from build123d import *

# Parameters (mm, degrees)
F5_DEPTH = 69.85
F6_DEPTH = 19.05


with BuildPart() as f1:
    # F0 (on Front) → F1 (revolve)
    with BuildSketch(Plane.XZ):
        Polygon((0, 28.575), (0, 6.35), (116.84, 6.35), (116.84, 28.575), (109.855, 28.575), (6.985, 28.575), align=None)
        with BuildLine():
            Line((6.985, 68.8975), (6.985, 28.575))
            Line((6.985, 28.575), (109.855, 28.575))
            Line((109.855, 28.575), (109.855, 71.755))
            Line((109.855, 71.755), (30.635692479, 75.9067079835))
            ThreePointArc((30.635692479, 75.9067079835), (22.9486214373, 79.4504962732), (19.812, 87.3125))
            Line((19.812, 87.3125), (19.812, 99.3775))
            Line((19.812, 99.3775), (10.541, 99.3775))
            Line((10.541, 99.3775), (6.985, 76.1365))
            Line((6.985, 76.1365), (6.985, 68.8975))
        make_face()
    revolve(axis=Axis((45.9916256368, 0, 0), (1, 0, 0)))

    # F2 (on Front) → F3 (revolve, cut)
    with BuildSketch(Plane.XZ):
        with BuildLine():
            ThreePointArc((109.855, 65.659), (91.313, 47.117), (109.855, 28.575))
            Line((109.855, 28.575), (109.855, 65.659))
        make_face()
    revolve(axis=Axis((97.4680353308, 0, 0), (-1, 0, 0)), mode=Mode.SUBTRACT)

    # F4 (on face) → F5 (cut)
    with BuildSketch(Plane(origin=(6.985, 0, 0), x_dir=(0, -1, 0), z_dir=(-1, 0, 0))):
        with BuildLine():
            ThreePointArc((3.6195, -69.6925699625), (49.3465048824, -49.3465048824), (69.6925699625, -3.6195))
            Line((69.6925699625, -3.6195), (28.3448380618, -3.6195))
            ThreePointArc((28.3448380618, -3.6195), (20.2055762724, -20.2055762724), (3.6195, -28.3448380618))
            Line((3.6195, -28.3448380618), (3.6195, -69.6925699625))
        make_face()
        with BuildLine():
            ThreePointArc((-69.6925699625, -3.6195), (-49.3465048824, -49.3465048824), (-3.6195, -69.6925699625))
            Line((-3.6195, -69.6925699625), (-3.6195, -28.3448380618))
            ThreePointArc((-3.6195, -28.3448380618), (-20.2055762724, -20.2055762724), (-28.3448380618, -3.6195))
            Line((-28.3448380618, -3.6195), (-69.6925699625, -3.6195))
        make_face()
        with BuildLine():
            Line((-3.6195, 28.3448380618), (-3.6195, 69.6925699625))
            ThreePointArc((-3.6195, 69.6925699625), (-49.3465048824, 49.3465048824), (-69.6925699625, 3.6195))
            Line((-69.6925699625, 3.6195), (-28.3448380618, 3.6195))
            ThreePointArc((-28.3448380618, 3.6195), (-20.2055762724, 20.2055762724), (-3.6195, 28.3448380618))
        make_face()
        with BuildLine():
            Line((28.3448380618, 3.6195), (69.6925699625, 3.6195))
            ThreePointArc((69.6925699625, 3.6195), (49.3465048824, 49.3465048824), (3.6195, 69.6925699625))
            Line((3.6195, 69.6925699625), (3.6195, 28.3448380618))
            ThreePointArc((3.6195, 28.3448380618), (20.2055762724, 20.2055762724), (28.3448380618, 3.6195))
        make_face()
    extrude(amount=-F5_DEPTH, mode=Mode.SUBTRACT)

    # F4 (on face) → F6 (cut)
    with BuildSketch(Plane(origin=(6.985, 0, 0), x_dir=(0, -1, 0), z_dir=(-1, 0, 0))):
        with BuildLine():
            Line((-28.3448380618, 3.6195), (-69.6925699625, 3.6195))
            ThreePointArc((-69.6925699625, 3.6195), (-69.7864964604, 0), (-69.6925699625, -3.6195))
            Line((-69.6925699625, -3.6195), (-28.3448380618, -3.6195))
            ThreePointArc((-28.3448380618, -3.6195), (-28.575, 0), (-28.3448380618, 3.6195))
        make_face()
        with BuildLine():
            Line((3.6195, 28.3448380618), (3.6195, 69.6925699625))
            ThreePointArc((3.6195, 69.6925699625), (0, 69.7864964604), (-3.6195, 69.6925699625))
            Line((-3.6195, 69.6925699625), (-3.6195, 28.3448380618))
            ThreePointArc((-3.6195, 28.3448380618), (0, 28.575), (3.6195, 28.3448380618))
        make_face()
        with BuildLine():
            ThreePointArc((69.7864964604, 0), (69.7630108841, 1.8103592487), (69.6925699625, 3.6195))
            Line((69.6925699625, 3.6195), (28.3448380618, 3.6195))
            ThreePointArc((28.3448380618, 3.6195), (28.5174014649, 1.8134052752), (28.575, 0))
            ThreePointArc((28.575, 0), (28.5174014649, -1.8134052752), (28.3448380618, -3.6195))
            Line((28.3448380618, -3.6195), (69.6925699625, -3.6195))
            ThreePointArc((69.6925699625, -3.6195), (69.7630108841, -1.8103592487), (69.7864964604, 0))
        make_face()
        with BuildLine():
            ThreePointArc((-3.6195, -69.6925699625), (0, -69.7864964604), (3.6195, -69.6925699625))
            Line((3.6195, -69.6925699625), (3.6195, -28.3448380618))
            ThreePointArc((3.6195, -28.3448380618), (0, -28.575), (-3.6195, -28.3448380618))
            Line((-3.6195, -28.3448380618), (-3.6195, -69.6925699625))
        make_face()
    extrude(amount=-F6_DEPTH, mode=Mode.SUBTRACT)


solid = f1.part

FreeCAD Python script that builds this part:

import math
import FreeCAD as App
import Part
import Sketcher

V = App.Vector
Q = App.Units.Quantity

doc = App.newDocument("Part")
body = doc.addObject("PartDesign::Body", "Body")

sketch1 = body.newObject("Sketcher::SketchObject", "Sketch")
sketch1.AttachmentSupport = (doc.getObject("XZ_Plane"), [""])
sketch1.MapMode = "FlatFace"
sketch1.addGeometry(Part.LineSegment(V(0, 28.575, 0), V(0, 6.35, 0)), False)
sketch1.addGeometry(Part.LineSegment(V(0, 6.35, 0), V(116.84, 6.35, 0)), False)
sketch1.addGeometry(Part.LineSegment(V(116.84, 6.35, 0), V(116.84, 28.575, 0)), False)
sketch1.addGeometry(Part.LineSegment(V(116.84, 28.575, 0), V(109.855, 28.575, 0)), False)
sketch1.addGeometry(Part.LineSegment(V(109.855, 28.575, 0), V(109.855, 71.755, 0)), False)
sketch1.addGeometry(Part.LineSegment(V(109.855, 71.755, 0), V(30.635692, 75.906708, 0)), False)
sketch1.addGeometry(Part.ArcOfCircle(Part.Circle(V(31.233445, 87.3125, 0), V(0, 0, 1), 11.421445), math.radians(180), math.radians(267)), False)
sketch1.addGeometry(Part.LineSegment(V(19.812, 87.3125, 0), V(19.812, 99.3775, 0)), False)
sketch1.addGeometry(Part.LineSegment(V(19.812, 99.3775, 0), V(10.541, 99.3775, 0)), False)
sketch1.addGeometry(Part.LineSegment(V(10.541, 99.3775, 0), V(6.985, 76.1365, 0)), False)
sketch1.addGeometry(Part.LineSegment(V(6.985, 76.1365, 0), V(6.985, 28.575, 0)), False)
sketch1.addGeometry(Part.LineSegment(V(6.985, 28.575, 0), V(0, 28.575, 0)), False)
sketch1.addConstraint(Sketcher.Constraint("Coincident", 0, 2, 1, 1))
sketch1.addConstraint(Sketcher.Constraint("Coincident", 1, 2, 2, 1))
sketch1.addConstraint(Sketcher.Constraint("Coincident", 2, 2, 3, 1))
sketch1.addConstraint(Sketcher.Constraint("Coincident", 3, 2, 4, 1))
sketch1.addConstraint(Sketcher.Constraint("Coincident", 4, 2, 5, 1))
sketch1.addConstraint(Sketcher.Constraint("Tangent", 5, 2, 6, 2))
sketch1.addConstraint(Sketcher.Constraint("Tangent", 6, 1, 7, 1))
sketch1.addConstraint(Sketcher.Constraint("Coincident", 7, 2, 8, 1))
sketch1.addConstraint(Sketcher.Constraint("Coincident", 8, 2, 9, 1))
sketch1.addConstraint(Sketcher.Constraint("Coincident", 9, 2, 10, 1))
sketch1.addConstraint(Sketcher.Constraint("Coincident", 10, 2, 11, 1))
sketch1.addConstraint(Sketcher.Constraint("Coincident", 11, 2, 0, 1))
sketch1.addConstraint(Sketcher.Constraint("Vertical", 0))
sketch1.addConstraint(Sketcher.Constraint("Horizontal", 1))
sketch1.addConstraint(Sketcher.Constraint("Vertical", 2))
sketch1.addConstraint(Sketcher.Constraint("Horizontal", 3))
sketch1.addConstraint(Sketcher.Constraint("Vertical", 4))
sketch1.addConstraint(Sketcher.Constraint("Vertical", 7))
sketch1.addConstraint(Sketcher.Constraint("Horizontal", 8))
sketch1.addConstraint(Sketcher.Constraint("Vertical", 10))
sketch1.addConstraint(Sketcher.Constraint("Horizontal", 11))
sketch1.addConstraint(Sketcher.Constraint("PointOnObject", 0, 2, -2))
sketch1.addConstraint(Sketcher.Constraint("Horizontal", 3, 2, 10, 2))
sketch1.addConstraint(Sketcher.Constraint("Equal", 3, 11))
sketch1.addConstraint(Sketcher.Constraint("DistanceX", 1, 1, 1, 2, Q("4.6 in")))
sketch1.addConstraint(Sketcher.Constraint("DistanceY", 4, 1, 4, 2, Q("1.7 in")))
sketch1.addConstraint(Sketcher.Constraint("Angle", 5, Q("177 deg")))
sketch1.addConstraint(Sketcher.Constraint("DistanceX", 3, 2, 3, 1, Q("0.275 in")))
sketch1.addConstraint(Sketcher.Constraint("DistanceX", 8, 2, 8, 1, Q("0.365 in")))
sketch1.addConstraint(Sketcher.Constraint("DistanceY", 0, 2, 0, 1, Q("0.875 in")))
sketch1.addConstraint(Sketcher.Constraint("DistanceY", 7, 1, 7, 2, Q("0.475 in")))
sketch1.addConstraint(Sketcher.Constraint("DistanceY", -1, 1, 0, 2, Q("0.25 in")))
sketch1.addConstraint(Sketcher.Constraint("DistanceX", -1, 1, 6, 1, Q("0.78 in")))
sketch1.addConstraint(Sketcher.Constraint("DistanceY", 9, 2, 6, 1, Q("0.44 in")))
sketch1.addConstraint(Sketcher.Constraint("DistanceY", 10, 2, 10, 1, Q("1.8725 in")))
revolution = body.newObject("PartDesign::Revolution", "Revolution")
revolution.Profile = sketch1
revolution.ReferenceAxis = (sketch1, ["H_Axis"])
revolution.Angle = 360

sketch2 = body.newObject("Sketcher::SketchObject", "Sketch001")
sketch2.AttachmentSupport = (doc.getObject("XZ_Plane"), [""])
sketch2.MapMode = "FlatFace"
sketch2.addGeometry(Part.ArcOfCircle(Part.Circle(V(109.855, 47.117, 0), V(0, 0, 1), 18.542), math.radians(90), math.radians(270)), False)
sketch2.addGeometry(Part.LineSegment(V(109.855, 28.575, 0), V(109.855, 65.659, 0)), False)
sketch2.addConstraint(Sketcher.Constraint("Coincident", 0, 1, 1, 2))
sketch2.addConstraint(Sketcher.Constraint("Coincident", 1, 1, 0, 2))
sketch2.addConstraint(Sketcher.Constraint("Vertical", 1))
sketch2.addConstraint(Sketcher.Constraint("Radius", 0, Q("0.73 in")))
sketch2.addConstraint(Sketcher.Constraint("DistanceX", -1, 1, 0, 3, Q("4.325 in")))
sketch2.addConstraint(Sketcher.Constraint("DistanceY", -1, 1, 0, 3, Q("1.855 in")))
sketch2.addConstraint(Sketcher.Constraint("DistanceX", -1, 1, 0, 1, Q("4.325 in")))
groove = body.newObject("PartDesign::Groove", "Groove")
groove.Profile = sketch2
groove.ReferenceAxis = (sketch2, ["H_Axis"])
groove.Angle = 360

sketch3 = body.newObject("Sketcher::SketchObject", "Sketch002")
sketch3.AttachmentSupport = (doc.getObject("YZ_Plane"), [""])
sketch3.MapMode = "FlatFace"
sketch3.AttachmentOffset = App.Placement(V(0, 0, 0.275 * 25.4), App.Rotation())
sketch3.addGeometry(Part.ArcOfCircle(Part.Circle(V(0, 0, 0), V(0, 0, 1), 69.786496), math.radians(-177.027001), math.radians(-92.972999)), False)
sketch3.addGeometry(Part.LineSegment(V(-69.69257, -3.6195, 0), V(-28.344838, -3.6195, 0)), False)
sketch3.addGeometry(Part.ArcOfCircle(Part.Circle(V(0, 0, 0), V(0, 0, 1), 28.575), math.radians(-172.722986), math.radians(-97.277014)), False)
sketch3.addGeometry(Part.LineSegment(V(-3.6195, -28.344838, 0), V(-3.6195, -69.69257, 0)), False)
sketch3.addGeometry(Part.ArcOfCircle(Part.Circle(V(0, 0, 0), V(0, 0, 1), 69.786496), math.radians(-87.027001), math.radians(-2.972999)), False)
sketch3.addGeometry(Part.LineSegment(V(3.6195, -69.69257, 0), V(3.6195, -28.344838, 0)), False)
sketch3.addGeometry(Part.ArcOfCircle(Part.Circle(V(0, 0, 0), V(0, 0, 1), 28.575), math.radians(-82.722986), math.radians(-7.277014)), False)
sketch3.addGeometry(Part.LineSegment(V(28.344838, -3.6195, 0), V(69.69257, -3.6195, 0)), False)
sketch3.addGeometry(Part.LineSegment(V(3.6195, 28.344838, 0), V(3.6195, 69.69257, 0)), False)
sketch3.addGeometry(Part.ArcOfCircle(Part.Circle(V(0, 0, 0), V(0, 0, 1), 69.786496), math.radians(2.972999), math.radians(87.027001)), False)
sketch3.addGeometry(Part.LineSegment(V(69.69257, 3.6195, 0), V(28.344838, 3.6195, 0)), False)
sketch3.addGeometry(Part.ArcOfCircle(Part.Circle(V(0, 0, 0), V(0, 0, 1), 28.575), math.radians(7.277014), math.radians(82.722986)), False)
sketch3.addGeometry(Part.LineSegment(V(-28.344838, 3.6195, 0), V(-69.69257, 3.6195, 0)), False)
sketch3.addGeometry(Part.ArcOfCircle(Part.Circle(V(0, 0, 0), V(0, 0, 1), 69.786496), math.radians(92.972999), math.radians(177.027001)), False)
sketch3.addGeometry(Part.LineSegment(V(-3.6195, 69.69257, 0), V(-3.6195, 28.344838, 0)), False)
sketch3.addGeometry(Part.ArcOfCircle(Part.Circle(V(0, 0, 0), V(0, 0, 1), 28.575), math.radians(97.277014), math.radians(172.722986)), False)
sketch3.addConstraint(Sketcher.Constraint("Coincident", 0, 1, 1, 1))
sketch3.addConstraint(Sketcher.Constraint("Coincident", 1, 2, 2, 1))
sketch3.addConstraint(Sketcher.Constraint("Coincident", 2, 2, 3, 1))
sketch3.addConstraint(Sketcher.Constraint("Coincident", 3, 2, 0, 2))
sketch3.addConstraint(Sketcher.Constraint("Coincident", 4, 1, 5, 1))
sketch3.addConstraint(Sketcher.Constraint("Coincident", 5, 2, 6, 1))
sketch3.addConstraint(Sketcher.Constraint("Coincident", 6, 2, 7, 1))
sketch3.addConstraint(Sketcher.Constraint("Coincident", 7, 2, 4, 2))
sketch3.addConstraint(Sketcher.Constraint("Coincident", 8, 2, 9, 2))
sketch3.addConstraint(Sketcher.Constraint("Coincident", 9, 1, 10, 1))
sketch3.addConstraint(Sketcher.Constraint("Coincident", 10, 2, 11, 1))
sketch3.addConstraint(Sketcher.Constraint("Coincident", 11, 2, 8, 1))
sketch3.addConstraint(Sketcher.Constraint("Coincident", 12, 2, 13, 2))
sketch3.addConstraint(Sketcher.Constraint("Coincident", 13, 1, 14, 1))
sketch3.addConstraint(Sketcher.Constraint("Coincident", 14, 2, 15, 1))
sketch3.addConstraint(Sketcher.Constraint("Coincident", 15, 2, 12, 1))
sketch3.addConstraint(Sketcher.Constraint("Horizontal", 1))
sketch3.addConstraint(Sketcher.Constraint("Vertical", 3))
sketch3.addConstraint(Sketcher.Constraint("Vertical", 5))
sketch3.addConstraint(Sketcher.Constraint("Horizontal", 7))
sketch3.addConstraint(Sketcher.Constraint("Vertical", 8))
sketch3.addConstraint(Sketcher.Constraint("Horizontal", 10))
sketch3.addConstraint(Sketcher.Constraint("Horizontal", 12))
sketch3.addConstraint(Sketcher.Constraint("Vertical", 14))
sketch3.addConstraint(Sketcher.Constraint("Coincident", 0, 3, -1, 1))
sketch3.addConstraint(Sketcher.Constraint("Coincident", 2, 3, -1, 1))
sketch3.addConstraint(Sketcher.Constraint("Coincident", 4, 3, -1, 1))
sketch3.addConstraint(Sketcher.Constraint("Coincident", 6, 3, -1, 1))
sketch3.addConstraint(Sketcher.Constraint("Coincident", 9, 3, -1, 1))
sketch3.addConstraint(Sketcher.Constraint("Coincident", 11, 3, -1, 1))
sketch3.addConstraint(Sketcher.Constraint("Coincident", 13, 3, -1, 1))
sketch3.addConstraint(Sketcher.Constraint("Coincident", 15, 3, -1, 1))
sketch3.addConstraint(Sketcher.Constraint("Equal", 0, 4))
sketch3.addConstraint(Sketcher.Constraint("Equal", 2, 6))
sketch3.addConstraint(Sketcher.Constraint("Equal", 4, 9))
sketch3.addConstraint(Sketcher.Constraint("Equal", 6, 11))
sketch3.addConstraint(Sketcher.Constraint("Equal", 9, 13))
sketch3.addConstraint(Sketcher.Constraint("Equal", 11, 15))
sketch3.addConstraint(Sketcher.Constraint("Horizontal", 3, 2, 4, 1))
sketch3.addConstraint(Sketcher.Constraint("Horizontal", 1, 2, 6, 2))
sketch3.addConstraint(Sketcher.Constraint("Horizontal", 10, 2, 12, 2))
sketch3.addConstraint(Sketcher.Constraint("Horizontal", 8, 2, 13, 1))
sketch3.addConstraint(Sketcher.Constraint("Vertical", 5, 2, 8, 2))
sketch3.addConstraint(Sketcher.Constraint("Vertical", 7, 2, 9, 1))
sketch3.addConstraint(Sketcher.Constraint("Equal", 12, 3))
sketch3.addConstraint(Sketcher.Constraint("Radius", 2, Q("1.125 in")))
sketch3.addConstraint(Sketcher.Constraint("Radius", 0, Q("2.7474999 in")))
sketch3.addConstraint(Sketcher.Constraint("DistanceX", 3, 2, 4, 1, Q("0.285 in")))
pocket1 = body.newObject("PartDesign::Pocket", "Pocket")
pocket1.Profile = sketch3
pocket1.Length = Q("2.75 in")
pocket1.Reversed = True

sketch4 = body.newObject("Sketcher::SketchObject", "Sketch003")
sketch4.AttachmentSupport = (doc.getObject("YZ_Plane"), [""])
sketch4.MapMode = "FlatFace"
sketch4.AttachmentOffset = App.Placement(V(0, 0, 0.275 * 25.4), App.Rotation())
sketch4.addGeometry(Part.LineSegment(V(28.344838, 3.6195, 0), V(69.69257, 3.6195, 0)), False)
sketch4.addGeometry(Part.ArcOfCircle(Part.Circle(V(0, 0, 0), V(0, 0, 1), 69.786497), math.radians(-2.972999), math.radians(2.972999)), False)
sketch4.addGeometry(Part.LineSegment(V(69.69257, -3.6195, 0), V(28.344838, -3.6195, 0)), False)
sketch4.addGeometry(Part.ArcOfCircle(Part.Circle(V(0, 0, 0), V(0, 0, 1), 28.575), math.radians(-7.277014), math.radians(7.277014)), False)
sketch4.addGeometry(Part.LineSegment(V(-3.6195, 28.344838, 0), V(-3.6195, 69.69257, 0)), False)
sketch4.addGeometry(Part.ArcOfCircle(Part.Circle(V(0, 0, 0), V(0, 0, 1), 69.786497), math.radians(87.027001), math.radians(92.972999)), False)
sketch4.addGeometry(Part.LineSegment(V(3.6195, 69.69257, 0), V(3.6195, 28.344838, 0)), False)
sketch4.addGeometry(Part.ArcOfCircle(Part.Circle(V(0, 0, 0), V(0, 0, 1), 28.575), math.radians(82.722986), math.radians(97.277014)), False)
sketch4.addGeometry(Part.ArcOfCircle(Part.Circle(V(0, 0, 0), V(0, 0, 1), 69.786496), math.radians(177.027001), math.radians(180)), False)
sketch4.addGeometry(Part.LineSegment(V(-69.69257, 3.6195, 0), V(-28.344838, 3.6195, 0)), False)
sketch4.addGeometry(Part.ArcOfCircle(Part.Circle(V(0, 0, 0), V(0, 0, 1), 28.575), math.radians(172.722986), math.radians(180)), False)
sketch4.addGeometry(Part.ArcOfCircle(Part.Circle(V(0, 0, 0), V(0, 0, 1), 28.575), math.radians(180), math.radians(187.277014)), False)
sketch4.addGeometry(Part.LineSegment(V(-28.344838, -3.6195, 0), V(-69.69257, -3.6195, 0)), False)
sketch4.addGeometry(Part.ArcOfCircle(Part.Circle(V(0, 0, 0), V(0, 0, 1), 69.786496), math.radians(180), math.radians(182.972999)), False)
sketch4.addGeometry(Part.ArcOfCircle(Part.Circle(V(0, 0, 0), V(0, 0, 1), 69.786497), math.radians(-92.972999), math.radians(-87.027001)), False)
sketch4.addGeometry(Part.LineSegment(V(-3.6195, -69.69257, 0), V(-3.6195, -28.344838, 0)), False)
sketch4.addGeometry(Part.ArcOfCircle(Part.Circle(V(0, 0, 0), V(0, 0, 1), 28.575), math.radians(-97.277014), math.radians(-82.722986)), False)
sketch4.addGeometry(Part.LineSegment(V(3.6195, -28.344838, 0), V(3.6195, -69.69257, 0)), False)
sketch4.addConstraint(Sketcher.Constraint("Coincident", 0, 2, 1, 2))
sketch4.addConstraint(Sketcher.Constraint("Coincident", 1, 1, 2, 1))
sketch4.addConstraint(Sketcher.Constraint("Coincident", 2, 2, 3, 1))
sketch4.addConstraint(Sketcher.Constraint("Coincident", 3, 2, 0, 1))
sketch4.addConstraint(Sketcher.Constraint("Coincident", 4, 2, 5, 2))
sketch4.addConstraint(Sketcher.Constraint("Coincident", 5, 1, 6, 1))
sketch4.addConstraint(Sketcher.Constraint("Coincident", 6, 2, 7, 1))
sketch4.addConstraint(Sketcher.Constraint("Coincident", 7, 2, 4, 1))
sketch4.addConstraint(Sketcher.Constraint("Coincident", 8, 1, 9, 1))
sketch4.addConstraint(Sketcher.Constraint("Coincident", 9, 2, 10, 1))
sketch4.addConstraint(Sketcher.Constraint("Tangent", 10, 2, 11, 1))
sketch4.addConstraint(Sketcher.Constraint("Coincident", 11, 2, 12, 1))
sketch4.addConstraint(Sketcher.Constraint("Coincident", 12, 2, 13, 2))
sketch4.addConstraint(Sketcher.Constraint("Tangent", 13, 1, 8, 2))
sketch4.addConstraint(Sketcher.Constraint("Coincident", 14, 1, 15, 1))
sketch4.addConstraint(Sketcher.Constraint("Coincident", 15, 2, 16, 1))
sketch4.addConstraint(Sketcher.Constraint("Coincident", 16, 2, 17, 1))
sketch4.addConstraint(Sketcher.Constraint("Coincident", 17, 2, 14, 2))
sketch4.addConstraint(Sketcher.Constraint("Horizontal", 0))
sketch4.addConstraint(Sketcher.Constraint("Horizontal", 2))
sketch4.addConstraint(Sketcher.Constraint("Vertical", 4))
sketch4.addConstraint(Sketcher.Constraint("Vertical", 6))
sketch4.addConstraint(Sketcher.Constraint("Horizontal", 9))
sketch4.addConstraint(Sketcher.Constraint("Horizontal", 12))
sketch4.addConstraint(Sketcher.Constraint("Vertical", 15))
sketch4.addConstraint(Sketcher.Constraint("Vertical", 17))
sketch4.addConstraint(Sketcher.Constraint("Coincident", 1, 3, -1, 1))
sketch4.addConstraint(Sketcher.Constraint("Coincident", 3, 3, -1, 1))
sketch4.addConstraint(Sketcher.Constraint("Coincident", 5, 3, -1, 1))
sketch4.addConstraint(Sketcher.Constraint("Coincident", 7, 3, -1, 1))
sketch4.addConstraint(Sketcher.Constraint("Coincident", 8, 3, -1, 1))
sketch4.addConstraint(Sketcher.Constraint("Coincident", 10, 3, -1, 1))
sketch4.addConstraint(Sketcher.Constraint("Coincident", 14, 3, -1, 1))
sketch4.addConstraint(Sketcher.Constraint("Coincident", 16, 3, -1, 1))
sketch4.addConstraint(Sketcher.Constraint("Equal", 1, 5))
sketch4.addConstraint(Sketcher.Constraint("Equal", 3, 7))
sketch4.addConstraint(Sketcher.Constraint("Equal", 5, 8))
sketch4.addConstraint(Sketcher.Constraint("Equal", 7, 10))
sketch4.addConstraint(Sketcher.Constraint("Equal", 10, 11))
sketch4.addConstraint(Sketcher.Constraint("Equal", 8, 13))
sketch4.addConstraint(Sketcher.Constraint("Equal", 13, 14))
sketch4.addConstraint(Sketcher.Constraint("Equal", 11, 16))
sketch4.addConstraint(Sketcher.Constraint("PointOnObject", 10, 2, -1))
sketch4.addConstraint(Sketcher.Constraint("PointOnObject", 13, 1, -1))
sketch4.addConstraint(Sketcher.Constraint("Horizontal", 4, 2, 5, 1))
sketch4.addConstraint(Sketcher.Constraint("Horizontal", 3, 2, 8, 1))
sketch4.addConstraint(Sketcher.Constraint("Horizontal", 2, 2, 11, 2))
sketch4.addConstraint(Sketcher.Constraint("Horizontal", 15, 2, 16, 2))
sketch4.addConstraint(Sketcher.Constraint("Vertical", 0, 2, 1, 1))
sketch4.addConstraint(Sketcher.Constraint("Vertical", 7, 2, 14, 1))
sketch4.addConstraint(Sketcher.Constraint("Equal", 12, 4))
sketch4.addConstraint(Sketcher.Constraint("Radius", 3, Q("1.125 in")))
sketch4.addConstraint(Sketcher.Constraint("Radius", 1, Q("2.7474999 in")))
sketch4.addConstraint(Sketcher.Constraint("DistanceY", 1, 1, 0, 2, Q("0.285 in")))
pocket2 = body.newObject("PartDesign::Pocket", "Pocket001")
pocket2.Profile = sketch4
pocket2.Length = Q("0.75 in")
pocket2.Reversed = True

doc.recompute()
